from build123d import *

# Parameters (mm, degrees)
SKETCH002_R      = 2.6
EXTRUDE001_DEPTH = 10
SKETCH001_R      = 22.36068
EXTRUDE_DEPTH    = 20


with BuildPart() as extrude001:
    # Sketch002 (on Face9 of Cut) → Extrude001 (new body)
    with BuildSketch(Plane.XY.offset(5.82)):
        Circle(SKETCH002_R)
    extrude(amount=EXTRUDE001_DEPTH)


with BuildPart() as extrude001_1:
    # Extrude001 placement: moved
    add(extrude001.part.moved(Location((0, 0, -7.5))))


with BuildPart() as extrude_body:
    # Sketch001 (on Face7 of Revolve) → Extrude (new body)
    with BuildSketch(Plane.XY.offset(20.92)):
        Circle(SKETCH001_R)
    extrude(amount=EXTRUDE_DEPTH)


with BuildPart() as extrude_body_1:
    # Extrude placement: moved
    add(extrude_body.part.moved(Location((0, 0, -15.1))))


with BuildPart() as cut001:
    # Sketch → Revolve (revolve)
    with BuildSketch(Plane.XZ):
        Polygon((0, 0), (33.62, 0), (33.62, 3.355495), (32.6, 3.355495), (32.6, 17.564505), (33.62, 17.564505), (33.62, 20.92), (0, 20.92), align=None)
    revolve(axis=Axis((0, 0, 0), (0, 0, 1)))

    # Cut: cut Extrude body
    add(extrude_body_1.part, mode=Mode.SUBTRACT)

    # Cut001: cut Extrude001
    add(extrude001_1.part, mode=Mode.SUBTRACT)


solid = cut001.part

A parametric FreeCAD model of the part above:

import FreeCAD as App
import Part
import Sketcher
Q = App.Units.Quantity


def add_polygon(sketch, points):
    """Adds a closed chain of lines whose ends are joined by coincident constraints."""
    first, n = sketch.GeometryCount, len(points)
    for a, b in zip(points, points[1:] + points[:1]):
        sketch.addGeometry(Part.LineSegment(App.Vector(*a, 0), App.Vector(*b, 0)), False)
    for i in range(n):
        sketch.addConstraint(Sketcher.Constraint("Coincident", first + i, 2, first + (i + 1) % n, 1))

doc = App.newDocument("Part")
body = doc.addObject("PartDesign::Body", "Body")

# Sketch on XY plane
sketch1 = body.newObject("Sketcher::SketchObject", "Sketch")
sketch1.AttachmentSupport = (doc.getObject("XY_Plane"), [""])
sketch1.MapMode = "FlatFace"
sketch1.AttachmentOffset = App.Placement(App.Vector(0, 0, 5.82), App.Rotation())
sketch1.addGeometry(Part.Circle(App.Vector(0, 0, 0), App.Vector(0, 0, 1), 2.6), False)
sketch1.addConstraint([
    Sketcher.Constraint("Coincident", 0, 3, -1, 1),
    Sketcher.Constraint("Diameter", 0, Q("5.2 mm")),
])
pad1 = body.newObject("PartDesign::Pad", "Pad")
pad1.Profile = sketch1
pad1.Length = 10
body2 = doc.addObject("PartDesign::Body", "Body001")
doc.recompute()

body.Placement = App.Placement(App.Vector(0, 0, -7.5), App.Rotation(App.Vector(0, 0, 1), 0))
boolean = body2.newObject("PartDesign::Boolean", "Boolean")
boolean.Type = "Fuse"
boolean.addObjects([body])
body3 = doc.addObject("PartDesign::Body", "Body002")

# Sketch on XY plane
sketch2 = body3.newObject("Sketcher::SketchObject", "Sketch001")
sketch2.AttachmentSupport = (doc.getObject("XY_Plane002"), [""])
sketch2.MapMode = "FlatFace"
sketch2.AttachmentOffset = App.Placement(App.Vector(0, 0, 20.92), App.Rotation())
sketch2.addGeometry(Part.Circle(App.Vector(0, 0, 0), App.Vector(0, 0, 1), 22), False)
sketch2.addConstraint([
    Sketcher.Constraint("Coincident", 0, 3, -1, 1),
    Sketcher.Constraint("Diameter", 0, Q("44.72136 mm")),
])
pad2 = body3.newObject("PartDesign::Pad", "Pad001")
pad2.Profile = sketch2
pad2.Length = 20
body4 = doc.addObject("PartDesign::Body", "Body003")
doc.recompute()

body3.Placement = App.Placement(App.Vector(0, 0, -15.1), App.Rotation(App.Vector(0, 0, 1), 0))
boolean2 = body4.newObject("PartDesign::Boolean", "Boolean001")
boolean2.Type = "Fuse"
boolean2.addObjects([body3])
body5 = doc.addObject("PartDesign::Body", "Body004")

# Sketch on XZ plane
sketch3 = body5.newObject("Sketcher::SketchObject", "Sketch002")
sketch3.AttachmentSupport = (doc.getObject("XZ_Plane004"), [""])
sketch3.MapMode = "FlatFace"
add_polygon(sketch3, [(0, 0), (33.6, 0), (33.6, 3.4), (32.6, 3.4), (32.6, 17.6), (33.6, 17.6), (33.6, 20.9), (0, 20.9)])  # lines 0-7
sketch3.addConstraint([
    Sketcher.Constraint("Horizontal", 0),
    Sketcher.Constraint("Vertical", 1),
    Sketcher.Constraint("Horizontal", 2),
    Sketcher.Constraint("Vertical", 3),
    Sketcher.Constraint("Horizontal", 4),
    Sketcher.Constraint("Vertical", 5),
    Sketcher.Constraint("Horizontal", 6),
    Sketcher.Constraint("Vertical", 7),
    Sketcher.Constraint("Coincident", 7, 2, -1, 1),
    Sketcher.Constraint("Vertical", 1, 2, 4, 2),
    Sketcher.Constraint("Equal", 1, 5),
    Sketcher.Constraint("DistanceX", 0, 1, 0, 2, Q("33.62 mm")),
    Sketcher.Constraint("DistanceX", 2, 2, 2, 1, Q("1.02 mm")),
    Sketcher.Constraint("DistanceY", 7, 2, 7, 1, Q("20.92 mm")),
    Sketcher.Constraint("DistanceY", 3, 1, 3, 2, Q("14.20901 mm")),
])
revolution = body5.newObject("PartDesign::Revolution", "Revolution")
revolution.Profile = sketch3
revolution.ReferenceAxis = (sketch3, ["V_Axis"])
revolution.Angle = 360
doc.recompute()

boolean3 = body5.newObject("PartDesign::Boolean", "Boolean002")
boolean3.Type = "Cut"
boolean3.addObjects([body4])
doc.recompute()

boolean4 = body5.newObject("PartDesign::Boolean", "Boolean003")
boolean4.Type = "Cut"
boolean4.addObjects([body2])

doc.recompute()
